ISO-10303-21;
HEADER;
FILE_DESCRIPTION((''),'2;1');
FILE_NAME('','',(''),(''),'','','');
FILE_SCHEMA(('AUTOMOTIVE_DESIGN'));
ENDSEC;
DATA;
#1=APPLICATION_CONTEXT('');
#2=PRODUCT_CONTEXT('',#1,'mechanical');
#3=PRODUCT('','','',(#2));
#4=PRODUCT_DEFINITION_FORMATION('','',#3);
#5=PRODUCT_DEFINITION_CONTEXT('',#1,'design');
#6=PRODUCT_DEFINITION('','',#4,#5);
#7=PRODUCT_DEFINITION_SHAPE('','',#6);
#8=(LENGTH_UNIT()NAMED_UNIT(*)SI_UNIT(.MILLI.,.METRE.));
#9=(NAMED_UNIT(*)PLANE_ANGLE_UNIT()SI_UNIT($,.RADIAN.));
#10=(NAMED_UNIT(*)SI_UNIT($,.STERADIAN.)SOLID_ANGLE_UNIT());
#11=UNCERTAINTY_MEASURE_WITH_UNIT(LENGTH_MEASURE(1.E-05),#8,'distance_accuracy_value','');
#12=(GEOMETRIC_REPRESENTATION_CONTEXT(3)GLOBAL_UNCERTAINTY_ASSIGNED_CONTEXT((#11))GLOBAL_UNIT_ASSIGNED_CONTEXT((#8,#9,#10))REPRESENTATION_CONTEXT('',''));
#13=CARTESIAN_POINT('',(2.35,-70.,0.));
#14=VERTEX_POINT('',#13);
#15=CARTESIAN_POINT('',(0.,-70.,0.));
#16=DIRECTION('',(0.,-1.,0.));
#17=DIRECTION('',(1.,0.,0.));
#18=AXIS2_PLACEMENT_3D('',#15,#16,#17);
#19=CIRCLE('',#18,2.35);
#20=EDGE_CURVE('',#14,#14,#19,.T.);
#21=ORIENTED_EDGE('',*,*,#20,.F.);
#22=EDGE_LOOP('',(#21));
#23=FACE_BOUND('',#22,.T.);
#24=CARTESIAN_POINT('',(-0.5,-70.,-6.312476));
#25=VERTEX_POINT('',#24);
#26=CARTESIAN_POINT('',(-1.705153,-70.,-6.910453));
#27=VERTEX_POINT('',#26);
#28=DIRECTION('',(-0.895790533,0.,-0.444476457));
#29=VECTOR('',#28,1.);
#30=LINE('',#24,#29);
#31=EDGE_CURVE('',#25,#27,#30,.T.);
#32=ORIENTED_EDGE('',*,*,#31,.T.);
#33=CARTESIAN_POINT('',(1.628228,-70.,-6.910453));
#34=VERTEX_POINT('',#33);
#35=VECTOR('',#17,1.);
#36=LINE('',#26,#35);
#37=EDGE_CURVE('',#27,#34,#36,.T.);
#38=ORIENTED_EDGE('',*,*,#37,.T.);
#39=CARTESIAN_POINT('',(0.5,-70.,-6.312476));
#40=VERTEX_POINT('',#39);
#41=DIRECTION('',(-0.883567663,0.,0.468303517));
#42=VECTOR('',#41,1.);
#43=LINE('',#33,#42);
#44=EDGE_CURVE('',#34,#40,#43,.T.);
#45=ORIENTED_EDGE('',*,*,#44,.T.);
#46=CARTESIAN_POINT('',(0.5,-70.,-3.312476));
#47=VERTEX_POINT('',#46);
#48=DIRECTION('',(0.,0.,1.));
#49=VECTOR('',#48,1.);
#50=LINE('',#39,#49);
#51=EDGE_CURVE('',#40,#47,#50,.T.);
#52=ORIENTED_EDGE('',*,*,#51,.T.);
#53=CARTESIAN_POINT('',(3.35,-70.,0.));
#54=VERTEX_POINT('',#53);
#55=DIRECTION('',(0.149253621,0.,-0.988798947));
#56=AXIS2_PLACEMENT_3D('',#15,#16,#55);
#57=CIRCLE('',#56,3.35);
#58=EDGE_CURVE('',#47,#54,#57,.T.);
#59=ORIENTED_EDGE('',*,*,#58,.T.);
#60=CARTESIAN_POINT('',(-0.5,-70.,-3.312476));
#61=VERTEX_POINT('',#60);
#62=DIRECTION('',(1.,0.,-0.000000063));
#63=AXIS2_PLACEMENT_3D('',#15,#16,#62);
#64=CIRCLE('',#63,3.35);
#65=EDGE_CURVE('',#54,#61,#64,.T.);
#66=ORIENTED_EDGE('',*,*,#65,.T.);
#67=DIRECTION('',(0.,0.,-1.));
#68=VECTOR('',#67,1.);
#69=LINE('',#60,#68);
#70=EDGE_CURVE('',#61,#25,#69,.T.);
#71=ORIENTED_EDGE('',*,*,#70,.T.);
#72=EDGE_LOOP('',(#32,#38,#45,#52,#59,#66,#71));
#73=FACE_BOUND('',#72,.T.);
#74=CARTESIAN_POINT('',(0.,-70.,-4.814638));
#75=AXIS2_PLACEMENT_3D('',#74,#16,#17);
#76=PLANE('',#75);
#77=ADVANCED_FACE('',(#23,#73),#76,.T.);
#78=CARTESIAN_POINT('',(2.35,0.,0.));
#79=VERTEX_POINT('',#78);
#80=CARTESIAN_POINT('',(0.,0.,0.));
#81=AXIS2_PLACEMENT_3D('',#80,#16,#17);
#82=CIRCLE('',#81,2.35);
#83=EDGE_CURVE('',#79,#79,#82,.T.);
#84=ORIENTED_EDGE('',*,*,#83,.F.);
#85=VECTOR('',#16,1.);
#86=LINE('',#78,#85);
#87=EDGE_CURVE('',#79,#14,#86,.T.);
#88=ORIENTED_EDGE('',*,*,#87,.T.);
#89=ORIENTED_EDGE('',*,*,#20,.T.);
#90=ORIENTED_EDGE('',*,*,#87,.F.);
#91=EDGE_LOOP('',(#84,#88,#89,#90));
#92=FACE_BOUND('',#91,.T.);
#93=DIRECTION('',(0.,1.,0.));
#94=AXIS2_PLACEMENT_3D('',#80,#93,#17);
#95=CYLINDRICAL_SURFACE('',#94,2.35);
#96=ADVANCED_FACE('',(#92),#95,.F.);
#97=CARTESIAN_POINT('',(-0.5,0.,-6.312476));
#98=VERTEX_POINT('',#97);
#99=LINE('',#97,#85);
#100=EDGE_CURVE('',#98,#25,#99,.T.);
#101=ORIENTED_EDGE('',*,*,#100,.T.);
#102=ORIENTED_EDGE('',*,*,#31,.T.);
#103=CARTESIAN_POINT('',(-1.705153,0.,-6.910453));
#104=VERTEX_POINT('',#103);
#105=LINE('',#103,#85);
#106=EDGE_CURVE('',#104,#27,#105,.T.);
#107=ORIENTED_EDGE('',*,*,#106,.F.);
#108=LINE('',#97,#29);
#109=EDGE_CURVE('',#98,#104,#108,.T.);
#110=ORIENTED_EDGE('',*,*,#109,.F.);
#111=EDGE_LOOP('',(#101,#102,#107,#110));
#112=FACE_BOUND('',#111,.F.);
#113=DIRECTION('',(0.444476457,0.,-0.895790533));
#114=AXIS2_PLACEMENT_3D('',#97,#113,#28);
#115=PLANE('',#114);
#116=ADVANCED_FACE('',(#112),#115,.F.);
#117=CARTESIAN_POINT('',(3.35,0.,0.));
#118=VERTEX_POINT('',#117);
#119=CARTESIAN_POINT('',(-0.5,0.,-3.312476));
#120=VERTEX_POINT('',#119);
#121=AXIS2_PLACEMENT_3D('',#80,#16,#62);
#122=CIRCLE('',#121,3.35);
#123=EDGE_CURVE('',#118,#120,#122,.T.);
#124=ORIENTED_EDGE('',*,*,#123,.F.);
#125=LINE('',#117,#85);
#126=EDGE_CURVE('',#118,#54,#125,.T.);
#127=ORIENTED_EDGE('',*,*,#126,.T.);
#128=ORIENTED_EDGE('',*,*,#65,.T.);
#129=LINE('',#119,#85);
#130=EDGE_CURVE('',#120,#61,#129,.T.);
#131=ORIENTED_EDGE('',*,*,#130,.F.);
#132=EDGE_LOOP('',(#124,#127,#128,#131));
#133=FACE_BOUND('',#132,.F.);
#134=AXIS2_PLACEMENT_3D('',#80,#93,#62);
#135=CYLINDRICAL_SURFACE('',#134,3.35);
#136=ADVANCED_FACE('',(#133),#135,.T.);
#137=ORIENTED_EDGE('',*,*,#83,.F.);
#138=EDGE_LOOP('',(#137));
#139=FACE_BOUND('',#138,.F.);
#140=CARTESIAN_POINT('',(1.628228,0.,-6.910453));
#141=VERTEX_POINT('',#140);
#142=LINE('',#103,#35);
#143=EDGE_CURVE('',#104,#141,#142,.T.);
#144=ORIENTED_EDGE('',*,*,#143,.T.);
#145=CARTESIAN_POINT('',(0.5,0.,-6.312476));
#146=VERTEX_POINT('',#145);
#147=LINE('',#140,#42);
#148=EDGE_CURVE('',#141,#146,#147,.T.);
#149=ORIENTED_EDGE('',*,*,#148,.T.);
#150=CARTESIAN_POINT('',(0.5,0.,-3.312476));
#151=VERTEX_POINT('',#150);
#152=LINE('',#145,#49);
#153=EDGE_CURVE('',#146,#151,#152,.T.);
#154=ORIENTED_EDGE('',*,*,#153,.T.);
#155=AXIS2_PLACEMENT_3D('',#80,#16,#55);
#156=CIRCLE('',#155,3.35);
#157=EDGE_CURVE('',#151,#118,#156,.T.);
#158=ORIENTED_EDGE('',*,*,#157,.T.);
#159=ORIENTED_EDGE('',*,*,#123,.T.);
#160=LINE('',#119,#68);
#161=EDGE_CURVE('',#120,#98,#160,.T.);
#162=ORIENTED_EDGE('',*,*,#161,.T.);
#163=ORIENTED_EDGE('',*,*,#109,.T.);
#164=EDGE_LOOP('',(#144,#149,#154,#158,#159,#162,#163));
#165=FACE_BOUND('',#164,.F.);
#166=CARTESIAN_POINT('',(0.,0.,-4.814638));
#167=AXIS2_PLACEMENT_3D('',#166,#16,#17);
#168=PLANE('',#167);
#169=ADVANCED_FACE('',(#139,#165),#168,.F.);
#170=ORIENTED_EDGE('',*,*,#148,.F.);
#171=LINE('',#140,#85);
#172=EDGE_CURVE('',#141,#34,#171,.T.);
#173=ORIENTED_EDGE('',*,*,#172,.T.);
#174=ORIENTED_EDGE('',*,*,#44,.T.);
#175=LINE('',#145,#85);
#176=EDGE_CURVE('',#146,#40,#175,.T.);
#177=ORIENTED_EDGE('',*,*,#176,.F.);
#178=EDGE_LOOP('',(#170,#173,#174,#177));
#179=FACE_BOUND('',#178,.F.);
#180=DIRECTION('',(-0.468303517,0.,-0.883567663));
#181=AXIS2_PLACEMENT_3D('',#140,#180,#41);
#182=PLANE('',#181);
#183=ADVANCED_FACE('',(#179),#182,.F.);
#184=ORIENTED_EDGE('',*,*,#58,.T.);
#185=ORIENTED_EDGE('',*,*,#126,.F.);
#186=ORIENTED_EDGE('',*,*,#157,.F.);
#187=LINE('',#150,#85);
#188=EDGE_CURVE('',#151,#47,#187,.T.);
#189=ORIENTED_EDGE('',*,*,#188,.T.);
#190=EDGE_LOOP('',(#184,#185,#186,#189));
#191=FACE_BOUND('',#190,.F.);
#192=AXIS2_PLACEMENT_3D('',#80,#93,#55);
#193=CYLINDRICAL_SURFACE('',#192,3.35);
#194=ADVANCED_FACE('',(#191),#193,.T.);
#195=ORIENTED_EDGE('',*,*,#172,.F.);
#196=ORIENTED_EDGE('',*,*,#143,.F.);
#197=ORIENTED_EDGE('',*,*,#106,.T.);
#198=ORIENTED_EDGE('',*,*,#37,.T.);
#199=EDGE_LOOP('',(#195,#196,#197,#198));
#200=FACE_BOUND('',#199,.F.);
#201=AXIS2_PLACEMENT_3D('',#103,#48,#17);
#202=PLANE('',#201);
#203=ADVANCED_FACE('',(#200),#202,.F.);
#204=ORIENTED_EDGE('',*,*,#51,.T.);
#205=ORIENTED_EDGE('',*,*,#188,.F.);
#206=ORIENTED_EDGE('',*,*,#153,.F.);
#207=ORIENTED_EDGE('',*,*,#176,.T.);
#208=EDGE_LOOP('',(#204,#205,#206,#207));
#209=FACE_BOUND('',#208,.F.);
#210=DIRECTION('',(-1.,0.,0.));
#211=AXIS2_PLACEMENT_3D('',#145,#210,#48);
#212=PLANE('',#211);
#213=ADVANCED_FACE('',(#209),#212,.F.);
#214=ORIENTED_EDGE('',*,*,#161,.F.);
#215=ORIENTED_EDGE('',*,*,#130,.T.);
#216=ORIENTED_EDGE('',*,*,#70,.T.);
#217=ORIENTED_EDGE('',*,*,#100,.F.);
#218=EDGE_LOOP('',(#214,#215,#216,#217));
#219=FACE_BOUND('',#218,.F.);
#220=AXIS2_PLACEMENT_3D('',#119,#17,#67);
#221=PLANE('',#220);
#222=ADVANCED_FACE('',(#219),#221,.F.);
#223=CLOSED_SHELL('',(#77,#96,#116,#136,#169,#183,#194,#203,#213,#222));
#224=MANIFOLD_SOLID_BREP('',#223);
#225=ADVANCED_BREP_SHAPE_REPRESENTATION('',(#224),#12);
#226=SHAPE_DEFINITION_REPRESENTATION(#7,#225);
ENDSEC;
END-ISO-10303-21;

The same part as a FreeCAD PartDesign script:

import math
import FreeCAD as App
import Part
import Sketcher

V = App.Vector

doc = App.newDocument("Part")
body = doc.addObject("PartDesign::Body", "Body")

sketch1 = body.newObject("Sketcher::SketchObject", "Sketch")
sketch1.AttachmentSupport = (doc.getObject("XZ_Plane"), [""])
sketch1.MapMode = "FlatFace"
sketch1.addGeometry(Part.LineSegment(V(-0.5, -3.3, 0), V(-0.5, -6.3, 0)), False)
sketch1.addGeometry(Part.LineSegment(V(-0.5, -6.3, 0), V(-1.7, -6.9, 0)), False)
sketch1.addGeometry(Part.LineSegment(V(-1.7, -6.9, 0), V(1.6, -6.9, 0)), False)
sketch1.addGeometry(Part.LineSegment(V(1.6, -6.9, 0), V(0.5, -6.3, 0)), False)
sketch1.addGeometry(Part.LineSegment(V(0.5, -6.3, 0), V(0.5, -3.3, 0)), False)
sketch1.addGeometry(Part.ArcOfCircle(Part.Circle(V(0, 0, 0), V(0, 0, 1), 3.3), math.radians(-81), math.radians(0)), False)
sketch1.addGeometry(Part.ArcOfCircle(Part.Circle(V(0, 0, 0), V(0, 0, 1), 3.3), math.radians(0), math.radians(261)), False)
sketch1.addGeometry(Part.Circle(V(0, 0, 0), V(0, 0, 1), 2.4), False)
sketch1.addConstraint(Sketcher.Constraint("Coincident", 0, 2, 1, 1))
sketch1.addConstraint(Sketcher.Constraint("Coincident", 1, 2, 2, 1))
sketch1.addConstraint(Sketcher.Constraint("Coincident", 2, 2, 3, 1))
sketch1.addConstraint(Sketcher.Constraint("Coincident", 3, 2, 4, 1))
sketch1.addConstraint(Sketcher.Constraint("Coincident", 4, 2, 5, 1))
sketch1.addConstraint(Sketcher.Constraint("Tangent", 5, 2, 6, 1))
sketch1.addConstraint(Sketcher.Constraint("Coincident", 6, 2, 0, 1))
sketch1.addConstraint(Sketcher.Constraint("Vertical", 0))
sketch1.addConstraint(Sketcher.Constraint("Horizontal", 2))
sketch1.addConstraint(Sketcher.Constraint("Vertical", 4))
sketch1.addConstraint(Sketcher.Constraint("Coincident", 5, 3, -1, 1))
sketch1.addConstraint(Sketcher.Constraint("Coincident", 7, 3, -1, 1))
sketch1.addConstraint(Sketcher.Constraint("Equal", 5, 6))
sketch1.addConstraint(Sketcher.Constraint("Symmetric", 0, 2, 3, 2, -2))
sketch1.addConstraint(Sketcher.Constraint("PointOnObject", 5, 2, -1))
sketch1.addConstraint(Sketcher.Constraint("Diameter", 7, 4.7))
sketch1.addConstraint(Sketcher.Constraint("DistanceY", 0, 2, 0, 1, 3.0))
sketch1.addConstraint(Sketcher.Constraint("Radius", 5, 3.35))
sketch1.addConstraint(Sketcher.Constraint("DistanceX", 0, 2, 3, 2, 1.0))
sketch1.addConstraint(Sketcher.Constraint("Distance", 3, 1.276901))
sketch1.addConstraint(Sketcher.Constraint("DistanceX", 2, 1, 2, 2, 3.333381))
sketch1.addConstraint(Sketcher.Constraint("Distance", 1, 1.345351))
pad1 = body.newObject("PartDesign::Pad", "Pad")
pad1.Profile = sketch1
pad1.Length = 70

doc.recompute()
